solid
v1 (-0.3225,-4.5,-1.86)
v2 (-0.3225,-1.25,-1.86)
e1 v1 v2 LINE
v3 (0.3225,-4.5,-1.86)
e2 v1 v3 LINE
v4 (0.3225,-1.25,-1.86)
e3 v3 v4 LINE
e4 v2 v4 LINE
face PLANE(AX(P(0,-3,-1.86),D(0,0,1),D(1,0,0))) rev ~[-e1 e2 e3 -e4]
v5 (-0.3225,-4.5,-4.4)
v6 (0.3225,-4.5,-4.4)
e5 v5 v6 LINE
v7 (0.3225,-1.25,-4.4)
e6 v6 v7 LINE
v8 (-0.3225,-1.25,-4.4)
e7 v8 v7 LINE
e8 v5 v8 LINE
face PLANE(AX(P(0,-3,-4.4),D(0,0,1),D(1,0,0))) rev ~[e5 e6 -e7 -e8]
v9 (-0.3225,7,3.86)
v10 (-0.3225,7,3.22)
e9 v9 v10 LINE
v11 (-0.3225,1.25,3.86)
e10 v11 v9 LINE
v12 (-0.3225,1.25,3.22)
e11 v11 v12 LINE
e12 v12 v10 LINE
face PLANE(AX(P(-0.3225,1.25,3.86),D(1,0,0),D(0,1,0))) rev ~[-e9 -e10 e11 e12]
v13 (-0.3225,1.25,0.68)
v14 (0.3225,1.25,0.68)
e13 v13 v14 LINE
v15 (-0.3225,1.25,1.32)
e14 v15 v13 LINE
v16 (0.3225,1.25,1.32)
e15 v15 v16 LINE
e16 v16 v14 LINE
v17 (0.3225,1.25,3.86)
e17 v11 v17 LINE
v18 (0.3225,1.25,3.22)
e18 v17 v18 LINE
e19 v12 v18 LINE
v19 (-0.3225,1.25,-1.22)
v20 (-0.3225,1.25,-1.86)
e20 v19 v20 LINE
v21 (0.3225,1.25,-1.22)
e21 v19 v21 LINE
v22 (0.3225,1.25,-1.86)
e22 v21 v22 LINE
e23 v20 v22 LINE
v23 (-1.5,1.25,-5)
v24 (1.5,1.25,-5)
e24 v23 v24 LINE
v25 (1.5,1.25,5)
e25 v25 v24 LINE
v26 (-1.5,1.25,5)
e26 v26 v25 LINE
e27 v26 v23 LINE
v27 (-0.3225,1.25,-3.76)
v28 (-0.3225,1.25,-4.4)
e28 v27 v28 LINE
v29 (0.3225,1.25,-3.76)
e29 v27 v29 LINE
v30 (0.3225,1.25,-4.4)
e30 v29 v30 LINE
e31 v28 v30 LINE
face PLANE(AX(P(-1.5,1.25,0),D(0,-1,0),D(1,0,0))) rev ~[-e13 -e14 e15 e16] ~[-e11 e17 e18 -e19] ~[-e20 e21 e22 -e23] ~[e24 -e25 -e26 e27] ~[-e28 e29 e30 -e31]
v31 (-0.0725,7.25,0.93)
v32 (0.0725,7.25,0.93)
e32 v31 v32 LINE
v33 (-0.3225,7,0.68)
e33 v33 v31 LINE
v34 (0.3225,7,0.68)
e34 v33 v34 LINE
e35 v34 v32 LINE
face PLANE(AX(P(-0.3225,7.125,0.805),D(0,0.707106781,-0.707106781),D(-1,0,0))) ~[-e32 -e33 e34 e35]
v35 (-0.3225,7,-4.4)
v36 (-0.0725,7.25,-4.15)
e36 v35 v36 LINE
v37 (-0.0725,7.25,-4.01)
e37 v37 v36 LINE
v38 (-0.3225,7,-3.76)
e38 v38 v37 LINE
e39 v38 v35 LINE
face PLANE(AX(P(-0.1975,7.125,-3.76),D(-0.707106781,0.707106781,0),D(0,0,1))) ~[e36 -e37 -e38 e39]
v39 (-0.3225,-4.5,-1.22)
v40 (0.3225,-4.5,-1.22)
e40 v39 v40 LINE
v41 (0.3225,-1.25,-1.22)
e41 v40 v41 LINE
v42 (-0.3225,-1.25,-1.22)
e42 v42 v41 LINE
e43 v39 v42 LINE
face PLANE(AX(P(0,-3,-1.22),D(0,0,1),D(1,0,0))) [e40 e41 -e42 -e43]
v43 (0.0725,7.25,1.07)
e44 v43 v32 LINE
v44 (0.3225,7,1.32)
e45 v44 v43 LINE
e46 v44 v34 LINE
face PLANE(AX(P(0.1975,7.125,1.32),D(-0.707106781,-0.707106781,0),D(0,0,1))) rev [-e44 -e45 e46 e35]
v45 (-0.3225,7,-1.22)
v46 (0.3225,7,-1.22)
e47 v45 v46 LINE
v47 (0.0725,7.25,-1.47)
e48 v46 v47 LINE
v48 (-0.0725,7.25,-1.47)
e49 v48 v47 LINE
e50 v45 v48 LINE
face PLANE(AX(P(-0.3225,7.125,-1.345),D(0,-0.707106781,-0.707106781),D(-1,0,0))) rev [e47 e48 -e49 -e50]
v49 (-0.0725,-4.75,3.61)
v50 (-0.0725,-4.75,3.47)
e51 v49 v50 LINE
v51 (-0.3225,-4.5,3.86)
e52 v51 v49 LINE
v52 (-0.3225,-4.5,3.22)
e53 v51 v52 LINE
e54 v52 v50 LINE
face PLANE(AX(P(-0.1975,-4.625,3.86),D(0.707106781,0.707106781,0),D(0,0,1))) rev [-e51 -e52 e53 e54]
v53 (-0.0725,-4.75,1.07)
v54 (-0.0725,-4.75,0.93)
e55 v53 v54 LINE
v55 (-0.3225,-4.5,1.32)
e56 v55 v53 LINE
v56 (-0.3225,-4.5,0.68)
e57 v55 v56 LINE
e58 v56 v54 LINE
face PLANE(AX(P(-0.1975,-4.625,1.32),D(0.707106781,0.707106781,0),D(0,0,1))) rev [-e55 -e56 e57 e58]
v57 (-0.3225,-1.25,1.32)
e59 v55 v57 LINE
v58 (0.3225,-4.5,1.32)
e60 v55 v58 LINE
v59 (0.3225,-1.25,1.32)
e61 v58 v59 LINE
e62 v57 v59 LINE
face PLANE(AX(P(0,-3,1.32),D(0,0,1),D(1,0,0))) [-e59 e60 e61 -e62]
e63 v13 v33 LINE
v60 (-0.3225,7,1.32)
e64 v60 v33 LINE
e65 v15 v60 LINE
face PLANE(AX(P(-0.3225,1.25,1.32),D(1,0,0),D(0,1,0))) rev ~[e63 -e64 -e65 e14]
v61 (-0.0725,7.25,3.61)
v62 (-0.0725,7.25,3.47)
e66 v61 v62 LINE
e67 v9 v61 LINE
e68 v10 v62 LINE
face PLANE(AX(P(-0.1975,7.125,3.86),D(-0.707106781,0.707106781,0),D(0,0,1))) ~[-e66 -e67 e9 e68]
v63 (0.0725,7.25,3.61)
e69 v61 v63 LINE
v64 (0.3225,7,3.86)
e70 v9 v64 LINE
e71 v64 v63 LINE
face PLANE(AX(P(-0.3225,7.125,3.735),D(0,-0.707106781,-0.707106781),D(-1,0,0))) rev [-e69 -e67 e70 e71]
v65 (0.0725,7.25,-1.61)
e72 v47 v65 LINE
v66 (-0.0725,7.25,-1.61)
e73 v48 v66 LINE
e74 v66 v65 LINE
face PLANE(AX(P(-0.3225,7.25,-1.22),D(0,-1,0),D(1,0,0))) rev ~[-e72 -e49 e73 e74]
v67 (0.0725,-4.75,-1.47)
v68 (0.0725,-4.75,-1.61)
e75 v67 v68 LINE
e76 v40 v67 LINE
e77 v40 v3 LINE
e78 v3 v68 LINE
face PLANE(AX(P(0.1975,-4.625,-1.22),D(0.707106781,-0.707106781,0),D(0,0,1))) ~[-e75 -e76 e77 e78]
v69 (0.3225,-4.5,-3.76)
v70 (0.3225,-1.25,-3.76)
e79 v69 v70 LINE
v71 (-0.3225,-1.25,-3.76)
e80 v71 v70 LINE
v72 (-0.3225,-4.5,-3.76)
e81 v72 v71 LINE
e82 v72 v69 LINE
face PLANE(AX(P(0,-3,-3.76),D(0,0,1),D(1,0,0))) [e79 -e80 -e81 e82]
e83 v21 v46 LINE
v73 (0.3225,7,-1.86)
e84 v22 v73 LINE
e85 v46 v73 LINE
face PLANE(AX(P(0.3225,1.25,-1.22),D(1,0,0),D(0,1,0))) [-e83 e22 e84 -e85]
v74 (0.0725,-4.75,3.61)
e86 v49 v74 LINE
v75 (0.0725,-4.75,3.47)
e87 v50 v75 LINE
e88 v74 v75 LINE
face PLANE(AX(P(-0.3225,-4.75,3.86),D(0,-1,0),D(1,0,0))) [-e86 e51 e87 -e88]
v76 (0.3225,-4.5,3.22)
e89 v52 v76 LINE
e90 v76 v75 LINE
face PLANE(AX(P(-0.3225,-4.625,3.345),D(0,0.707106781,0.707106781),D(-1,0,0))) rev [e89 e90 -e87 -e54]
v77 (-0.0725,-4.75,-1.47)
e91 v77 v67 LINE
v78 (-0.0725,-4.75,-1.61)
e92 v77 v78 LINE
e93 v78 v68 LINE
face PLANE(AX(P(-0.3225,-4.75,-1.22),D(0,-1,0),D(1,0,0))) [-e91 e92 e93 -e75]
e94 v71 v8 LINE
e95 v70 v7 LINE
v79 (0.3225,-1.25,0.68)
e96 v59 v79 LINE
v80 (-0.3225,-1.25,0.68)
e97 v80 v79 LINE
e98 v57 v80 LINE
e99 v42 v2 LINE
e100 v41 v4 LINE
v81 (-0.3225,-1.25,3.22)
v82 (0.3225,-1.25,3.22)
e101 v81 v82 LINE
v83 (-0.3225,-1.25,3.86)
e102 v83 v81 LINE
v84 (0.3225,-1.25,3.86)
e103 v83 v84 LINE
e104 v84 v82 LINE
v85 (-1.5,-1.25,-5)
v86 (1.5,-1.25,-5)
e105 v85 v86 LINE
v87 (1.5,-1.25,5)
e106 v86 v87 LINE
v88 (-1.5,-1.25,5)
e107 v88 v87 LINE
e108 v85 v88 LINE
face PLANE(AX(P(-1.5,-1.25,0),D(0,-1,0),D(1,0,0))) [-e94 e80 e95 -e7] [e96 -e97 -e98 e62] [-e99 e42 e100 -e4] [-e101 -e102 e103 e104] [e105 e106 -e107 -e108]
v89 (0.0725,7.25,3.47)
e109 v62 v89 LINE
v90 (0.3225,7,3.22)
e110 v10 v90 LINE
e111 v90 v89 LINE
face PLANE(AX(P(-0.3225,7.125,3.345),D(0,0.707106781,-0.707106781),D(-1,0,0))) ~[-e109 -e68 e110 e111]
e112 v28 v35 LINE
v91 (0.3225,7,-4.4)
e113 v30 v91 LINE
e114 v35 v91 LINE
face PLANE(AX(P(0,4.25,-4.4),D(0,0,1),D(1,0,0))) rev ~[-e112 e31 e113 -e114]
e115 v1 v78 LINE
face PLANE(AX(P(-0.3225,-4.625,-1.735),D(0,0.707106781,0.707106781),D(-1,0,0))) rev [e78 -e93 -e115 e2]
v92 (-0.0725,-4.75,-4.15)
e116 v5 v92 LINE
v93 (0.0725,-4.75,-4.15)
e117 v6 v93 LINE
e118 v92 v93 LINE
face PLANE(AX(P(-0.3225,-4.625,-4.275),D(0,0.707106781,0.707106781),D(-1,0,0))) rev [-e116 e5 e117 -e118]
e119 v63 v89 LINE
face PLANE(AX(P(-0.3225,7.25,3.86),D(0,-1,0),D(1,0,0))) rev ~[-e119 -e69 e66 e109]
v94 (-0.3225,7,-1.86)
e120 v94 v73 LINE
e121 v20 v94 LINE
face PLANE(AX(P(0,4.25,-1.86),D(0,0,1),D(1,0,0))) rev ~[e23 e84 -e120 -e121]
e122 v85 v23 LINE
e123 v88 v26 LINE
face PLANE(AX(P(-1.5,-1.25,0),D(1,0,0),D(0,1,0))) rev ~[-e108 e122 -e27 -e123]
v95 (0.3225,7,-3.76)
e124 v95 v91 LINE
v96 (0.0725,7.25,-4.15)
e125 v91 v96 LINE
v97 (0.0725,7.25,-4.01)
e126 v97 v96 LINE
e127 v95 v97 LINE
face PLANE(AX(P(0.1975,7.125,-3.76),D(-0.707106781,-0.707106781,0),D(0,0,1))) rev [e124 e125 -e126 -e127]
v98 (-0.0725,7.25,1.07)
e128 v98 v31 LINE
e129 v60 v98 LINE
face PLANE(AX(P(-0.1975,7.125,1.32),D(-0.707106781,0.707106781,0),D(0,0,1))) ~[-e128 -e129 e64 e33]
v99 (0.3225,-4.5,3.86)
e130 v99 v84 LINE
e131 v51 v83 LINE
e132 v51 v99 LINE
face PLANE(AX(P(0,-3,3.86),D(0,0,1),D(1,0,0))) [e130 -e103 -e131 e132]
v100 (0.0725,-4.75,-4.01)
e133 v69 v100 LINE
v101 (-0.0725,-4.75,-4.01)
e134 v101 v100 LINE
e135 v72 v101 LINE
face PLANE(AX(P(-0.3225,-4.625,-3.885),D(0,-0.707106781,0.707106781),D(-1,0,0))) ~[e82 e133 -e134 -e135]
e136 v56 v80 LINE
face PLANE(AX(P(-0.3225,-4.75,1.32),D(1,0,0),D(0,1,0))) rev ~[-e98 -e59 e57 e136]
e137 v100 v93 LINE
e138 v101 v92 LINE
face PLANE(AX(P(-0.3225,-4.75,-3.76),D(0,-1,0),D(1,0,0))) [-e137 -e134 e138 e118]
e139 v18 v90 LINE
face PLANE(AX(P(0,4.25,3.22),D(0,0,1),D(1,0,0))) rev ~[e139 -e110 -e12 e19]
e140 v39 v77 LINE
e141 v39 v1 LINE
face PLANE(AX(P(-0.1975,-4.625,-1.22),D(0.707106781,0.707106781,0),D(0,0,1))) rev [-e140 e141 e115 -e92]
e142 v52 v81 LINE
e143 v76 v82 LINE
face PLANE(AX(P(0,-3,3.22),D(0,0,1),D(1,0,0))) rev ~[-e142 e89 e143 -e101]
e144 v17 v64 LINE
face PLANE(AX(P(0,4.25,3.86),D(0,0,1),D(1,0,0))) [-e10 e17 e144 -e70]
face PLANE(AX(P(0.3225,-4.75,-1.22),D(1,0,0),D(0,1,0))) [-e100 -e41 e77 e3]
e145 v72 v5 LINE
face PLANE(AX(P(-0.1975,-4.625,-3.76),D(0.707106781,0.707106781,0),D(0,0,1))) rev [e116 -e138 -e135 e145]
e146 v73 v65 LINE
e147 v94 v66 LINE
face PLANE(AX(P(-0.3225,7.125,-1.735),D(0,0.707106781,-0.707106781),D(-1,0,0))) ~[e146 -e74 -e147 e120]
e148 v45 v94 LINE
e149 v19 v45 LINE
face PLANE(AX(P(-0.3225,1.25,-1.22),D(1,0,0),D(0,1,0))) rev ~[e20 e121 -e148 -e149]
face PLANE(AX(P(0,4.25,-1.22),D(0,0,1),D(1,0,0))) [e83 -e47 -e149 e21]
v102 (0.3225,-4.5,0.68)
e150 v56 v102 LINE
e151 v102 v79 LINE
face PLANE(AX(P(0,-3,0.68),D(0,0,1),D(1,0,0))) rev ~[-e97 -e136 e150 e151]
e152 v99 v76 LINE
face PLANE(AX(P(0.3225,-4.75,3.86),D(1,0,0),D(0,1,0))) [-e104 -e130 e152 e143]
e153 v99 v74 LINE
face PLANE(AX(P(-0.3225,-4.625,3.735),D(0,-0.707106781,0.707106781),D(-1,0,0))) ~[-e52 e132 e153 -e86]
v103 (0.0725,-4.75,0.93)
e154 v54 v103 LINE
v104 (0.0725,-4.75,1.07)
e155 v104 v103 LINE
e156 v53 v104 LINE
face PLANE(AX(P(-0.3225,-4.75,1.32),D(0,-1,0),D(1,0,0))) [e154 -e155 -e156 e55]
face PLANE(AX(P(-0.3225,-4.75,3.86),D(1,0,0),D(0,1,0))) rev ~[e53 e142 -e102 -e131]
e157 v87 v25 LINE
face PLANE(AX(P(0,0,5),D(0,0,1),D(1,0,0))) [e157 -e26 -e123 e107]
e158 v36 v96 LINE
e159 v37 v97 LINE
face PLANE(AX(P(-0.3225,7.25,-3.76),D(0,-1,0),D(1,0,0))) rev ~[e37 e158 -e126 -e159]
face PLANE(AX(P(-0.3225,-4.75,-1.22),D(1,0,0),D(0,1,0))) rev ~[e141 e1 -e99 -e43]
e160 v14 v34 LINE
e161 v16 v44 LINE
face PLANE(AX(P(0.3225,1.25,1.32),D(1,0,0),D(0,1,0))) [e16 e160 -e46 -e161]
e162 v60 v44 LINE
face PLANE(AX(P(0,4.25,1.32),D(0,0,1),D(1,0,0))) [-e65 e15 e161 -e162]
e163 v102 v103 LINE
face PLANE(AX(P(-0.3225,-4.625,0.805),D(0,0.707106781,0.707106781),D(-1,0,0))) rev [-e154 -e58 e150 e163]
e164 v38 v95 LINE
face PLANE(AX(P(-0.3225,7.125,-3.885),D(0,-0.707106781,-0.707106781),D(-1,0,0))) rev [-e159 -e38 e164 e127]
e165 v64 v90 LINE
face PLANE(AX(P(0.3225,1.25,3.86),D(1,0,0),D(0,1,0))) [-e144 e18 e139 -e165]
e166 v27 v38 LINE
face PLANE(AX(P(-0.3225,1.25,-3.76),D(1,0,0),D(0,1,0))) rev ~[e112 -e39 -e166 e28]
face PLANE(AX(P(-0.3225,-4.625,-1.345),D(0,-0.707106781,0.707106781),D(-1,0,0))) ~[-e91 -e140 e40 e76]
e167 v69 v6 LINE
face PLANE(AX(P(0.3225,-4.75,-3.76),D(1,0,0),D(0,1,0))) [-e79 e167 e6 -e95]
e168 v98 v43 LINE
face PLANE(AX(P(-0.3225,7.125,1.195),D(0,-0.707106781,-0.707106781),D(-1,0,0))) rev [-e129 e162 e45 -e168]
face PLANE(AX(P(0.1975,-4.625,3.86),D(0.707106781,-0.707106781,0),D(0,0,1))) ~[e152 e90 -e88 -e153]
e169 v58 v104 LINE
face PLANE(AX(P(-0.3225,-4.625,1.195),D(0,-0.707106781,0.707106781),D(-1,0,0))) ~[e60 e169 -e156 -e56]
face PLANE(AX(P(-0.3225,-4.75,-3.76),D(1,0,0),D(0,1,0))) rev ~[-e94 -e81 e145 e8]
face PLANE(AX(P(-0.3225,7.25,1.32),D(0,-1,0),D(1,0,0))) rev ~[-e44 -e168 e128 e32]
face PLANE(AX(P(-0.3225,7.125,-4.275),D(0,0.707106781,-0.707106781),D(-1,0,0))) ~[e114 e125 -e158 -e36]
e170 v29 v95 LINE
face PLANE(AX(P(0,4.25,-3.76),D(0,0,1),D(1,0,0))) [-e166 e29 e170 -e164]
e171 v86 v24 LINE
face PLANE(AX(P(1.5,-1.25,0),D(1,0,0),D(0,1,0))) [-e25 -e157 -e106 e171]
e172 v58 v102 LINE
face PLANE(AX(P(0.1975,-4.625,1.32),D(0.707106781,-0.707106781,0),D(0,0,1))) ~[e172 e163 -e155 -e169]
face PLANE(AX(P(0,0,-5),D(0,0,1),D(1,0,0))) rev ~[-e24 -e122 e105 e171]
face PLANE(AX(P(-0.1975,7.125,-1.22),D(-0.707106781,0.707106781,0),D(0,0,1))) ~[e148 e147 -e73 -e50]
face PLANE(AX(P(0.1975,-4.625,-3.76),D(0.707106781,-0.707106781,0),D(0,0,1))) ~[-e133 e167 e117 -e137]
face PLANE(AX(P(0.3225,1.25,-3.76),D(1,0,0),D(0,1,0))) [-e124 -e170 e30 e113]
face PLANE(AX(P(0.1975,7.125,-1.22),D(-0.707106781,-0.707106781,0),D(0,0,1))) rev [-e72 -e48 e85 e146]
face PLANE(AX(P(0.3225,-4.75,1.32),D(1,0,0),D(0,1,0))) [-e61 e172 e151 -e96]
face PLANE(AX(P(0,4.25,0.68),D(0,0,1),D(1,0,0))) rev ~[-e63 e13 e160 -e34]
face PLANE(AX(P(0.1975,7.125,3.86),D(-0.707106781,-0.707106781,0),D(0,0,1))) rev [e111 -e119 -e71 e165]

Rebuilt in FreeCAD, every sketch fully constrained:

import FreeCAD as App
import Part
import Sketcher
from FreeCAD import Vector


def edges_at(feature, points):
    """Names of the edges that pass closest to the given points."""
    edges = feature.Shape.Edges
    near = lambda p: min(range(len(edges)), key=lambda i: edges[i].distToShape(Part.Vertex(*p))[0])
    return sorted({f"Edge{near(p) + 1}" for p in points})


def add_polygon(sketch, points):
    """Adds a closed chain of lines whose ends are joined by coincident constraints."""
    first, n = sketch.GeometryCount, len(points)
    for a, b in zip(points, points[1:] + points[:1]):
        sketch.addGeometry(Part.LineSegment(App.Vector(*a, 0), App.Vector(*b, 0)), False)
    for i in range(n):
        sketch.addConstraint(Sketcher.Constraint("Coincident", first + i, 2, first + (i + 1) % n, 1))

doc = App.newDocument("Part")
body = doc.addObject("PartDesign::Body", "Body")

sketch1 = body.newObject("Sketcher::SketchObject", "Sketch")
sketch1.AttachmentSupport = (doc.getObject("XY_Plane"), [""])
sketch1.MapMode = "FlatFace"
add_polygon(sketch1, [(-1.5, 1.2), (-1.5, -1.2), (1.5, -1.2), (1.5, 1.2)])
sketch1.addConstraint(Sketcher.Constraint("Vertical", 0))
sketch1.addConstraint(Sketcher.Constraint("Horizontal", 1))
sketch1.addConstraint(Sketcher.Constraint("Vertical", 2))
sketch1.addConstraint(Sketcher.Constraint("Horizontal", 3))
sketch1.addConstraint(Sketcher.Constraint("Symmetric", 0, 2, 2, 2, -1, 1))
sketch1.addConstraint(Sketcher.Constraint("DistanceX", 1, 1, 1, 2, 3.0))
sketch1.addConstraint(Sketcher.Constraint("DistanceY", 0, 2, 0, 1, 2.5))
pad1 = body.newObject("PartDesign::Pad", "Pad")
pad1.Profile = sketch1
pad1.Length = 10
pad1.Midplane = True

sketch2 = body.newObject("Sketcher::SketchObject", "Sketch001")
sketch2.AttachmentSupport = (doc.getObject("XY_Plane"), [""])
sketch2.MapMode = "FlatFace"
sketch2.AttachmentOffset = App.Placement(Vector(0, 0, 3.86), App.Rotation())
add_polygon(sketch2, [(-0.3, 7.2), (-0.3, 1.2), (0.3, 1.2), (0.3, 7.2)])
add_polygon(sketch2, [(-0.3, -1.2), (-0.3, -4.8), (0.3, -4.8), (0.3, -1.2)])
sketch2.addConstraint(Sketcher.Constraint("Vertical", 0))
sketch2.addConstraint(Sketcher.Constraint("Horizontal", 1))
sketch2.addConstraint(Sketcher.Constraint("Vertical", 2))
sketch2.addConstraint(Sketcher.Constraint("Horizontal", 3))
sketch2.addConstraint(Sketcher.Constraint("Vertical", 4))
sketch2.addConstraint(Sketcher.Constraint("Horizontal", 5))
sketch2.addConstraint(Sketcher.Constraint("Vertical", 6))
sketch2.addConstraint(Sketcher.Constraint("Horizontal", 7))
sketch2.addConstraint(Sketcher.Constraint("Symmetric", 0, 2, 6, 2, -1, 1))
sketch2.addConstraint(Sketcher.Constraint("Vertical", 3, 2, 4, 2))
sketch2.addConstraint(Sketcher.Constraint("Vertical", 2, 2, 5, 2))
sketch2.addConstraint(Sketcher.Constraint("DistanceY", 0, 2, 0, 1, 6.0))
sketch2.addConstraint(Sketcher.Constraint("DistanceY", 4, 2, 4, 1, 3.5))
sketch2.addConstraint(Sketcher.Constraint("DistanceY", 4, 2, 0, 2, 6.0))
sketch2.addConstraint(Sketcher.Constraint("DistanceX", 1, 1, 1, 2, 0.645))
pad2 = body.newObject("PartDesign::Pad", "Pad001")
pad2.Profile = sketch2
pad2.Length = 0.64
pad2.Reversed = True
doc.recompute()

linearpattern = body.newObject("PartDesign::LinearPattern", "LinearPattern")
linearpattern.Originals = [pad2]
linearpattern.Direction = (doc.getObject("Z_Axis"), [""])
linearpattern.Mode = "offset"
linearpattern.Offset = 2.54
linearpattern.Occurrences = 4
linearpattern.Reversed = True
body.Tip = linearpattern
doc.recompute()

chamfer = body.newObject("PartDesign::Chamfer", "Chamfer")
chamfer.Base = (linearpattern, edges_at(linearpattern, [
    (0.323, 7.25, 3.54),
    (0, 7.25, 3.22),
    (-0.323, 7.25, 3.54),
    (0, 7.25, 3.86),
    (0, -4.75, 3.22),
    (0.323, -4.75, 3.54),
    (-0.323, -4.75, 3.54),
    (0, -4.75, 3.86),
    (0.323, 7.25, 1),
    (0, 7.25, 0.68),
    (-0.323, 7.25, 1),
    (0, 7.25, 1.32),
    (0, -4.75, 0.68),
    (0.323, -4.75, 1),
    (-0.323, -4.75, 1),
    (0, -4.75, 1.32),
    (0.323, 7.25, -1.54),
    (0, 7.25, -1.86),
    (-0.323, 7.25, -1.54),
    (0, 7.25, -1.22),
    (0, -4.75, -1.86),
    (0.323, -4.75, -1.54),
    (-0.323, -4.75, -1.54),
    (0, -4.75, -1.22),
    (0.323, 7.25, -4.08),
    (0, 7.25, -4.4),
    (-0.323, 7.25, -4.08),
    (0, 7.25, -3.76),
    (0, -4.75, -4.4),
    (0.323, -4.75, -4.08),
    (-0.323, -4.75, -4.08),
    (0, -4.75, -3.76),
]))
chamfer.Size = 0.25

doc.recompute()
